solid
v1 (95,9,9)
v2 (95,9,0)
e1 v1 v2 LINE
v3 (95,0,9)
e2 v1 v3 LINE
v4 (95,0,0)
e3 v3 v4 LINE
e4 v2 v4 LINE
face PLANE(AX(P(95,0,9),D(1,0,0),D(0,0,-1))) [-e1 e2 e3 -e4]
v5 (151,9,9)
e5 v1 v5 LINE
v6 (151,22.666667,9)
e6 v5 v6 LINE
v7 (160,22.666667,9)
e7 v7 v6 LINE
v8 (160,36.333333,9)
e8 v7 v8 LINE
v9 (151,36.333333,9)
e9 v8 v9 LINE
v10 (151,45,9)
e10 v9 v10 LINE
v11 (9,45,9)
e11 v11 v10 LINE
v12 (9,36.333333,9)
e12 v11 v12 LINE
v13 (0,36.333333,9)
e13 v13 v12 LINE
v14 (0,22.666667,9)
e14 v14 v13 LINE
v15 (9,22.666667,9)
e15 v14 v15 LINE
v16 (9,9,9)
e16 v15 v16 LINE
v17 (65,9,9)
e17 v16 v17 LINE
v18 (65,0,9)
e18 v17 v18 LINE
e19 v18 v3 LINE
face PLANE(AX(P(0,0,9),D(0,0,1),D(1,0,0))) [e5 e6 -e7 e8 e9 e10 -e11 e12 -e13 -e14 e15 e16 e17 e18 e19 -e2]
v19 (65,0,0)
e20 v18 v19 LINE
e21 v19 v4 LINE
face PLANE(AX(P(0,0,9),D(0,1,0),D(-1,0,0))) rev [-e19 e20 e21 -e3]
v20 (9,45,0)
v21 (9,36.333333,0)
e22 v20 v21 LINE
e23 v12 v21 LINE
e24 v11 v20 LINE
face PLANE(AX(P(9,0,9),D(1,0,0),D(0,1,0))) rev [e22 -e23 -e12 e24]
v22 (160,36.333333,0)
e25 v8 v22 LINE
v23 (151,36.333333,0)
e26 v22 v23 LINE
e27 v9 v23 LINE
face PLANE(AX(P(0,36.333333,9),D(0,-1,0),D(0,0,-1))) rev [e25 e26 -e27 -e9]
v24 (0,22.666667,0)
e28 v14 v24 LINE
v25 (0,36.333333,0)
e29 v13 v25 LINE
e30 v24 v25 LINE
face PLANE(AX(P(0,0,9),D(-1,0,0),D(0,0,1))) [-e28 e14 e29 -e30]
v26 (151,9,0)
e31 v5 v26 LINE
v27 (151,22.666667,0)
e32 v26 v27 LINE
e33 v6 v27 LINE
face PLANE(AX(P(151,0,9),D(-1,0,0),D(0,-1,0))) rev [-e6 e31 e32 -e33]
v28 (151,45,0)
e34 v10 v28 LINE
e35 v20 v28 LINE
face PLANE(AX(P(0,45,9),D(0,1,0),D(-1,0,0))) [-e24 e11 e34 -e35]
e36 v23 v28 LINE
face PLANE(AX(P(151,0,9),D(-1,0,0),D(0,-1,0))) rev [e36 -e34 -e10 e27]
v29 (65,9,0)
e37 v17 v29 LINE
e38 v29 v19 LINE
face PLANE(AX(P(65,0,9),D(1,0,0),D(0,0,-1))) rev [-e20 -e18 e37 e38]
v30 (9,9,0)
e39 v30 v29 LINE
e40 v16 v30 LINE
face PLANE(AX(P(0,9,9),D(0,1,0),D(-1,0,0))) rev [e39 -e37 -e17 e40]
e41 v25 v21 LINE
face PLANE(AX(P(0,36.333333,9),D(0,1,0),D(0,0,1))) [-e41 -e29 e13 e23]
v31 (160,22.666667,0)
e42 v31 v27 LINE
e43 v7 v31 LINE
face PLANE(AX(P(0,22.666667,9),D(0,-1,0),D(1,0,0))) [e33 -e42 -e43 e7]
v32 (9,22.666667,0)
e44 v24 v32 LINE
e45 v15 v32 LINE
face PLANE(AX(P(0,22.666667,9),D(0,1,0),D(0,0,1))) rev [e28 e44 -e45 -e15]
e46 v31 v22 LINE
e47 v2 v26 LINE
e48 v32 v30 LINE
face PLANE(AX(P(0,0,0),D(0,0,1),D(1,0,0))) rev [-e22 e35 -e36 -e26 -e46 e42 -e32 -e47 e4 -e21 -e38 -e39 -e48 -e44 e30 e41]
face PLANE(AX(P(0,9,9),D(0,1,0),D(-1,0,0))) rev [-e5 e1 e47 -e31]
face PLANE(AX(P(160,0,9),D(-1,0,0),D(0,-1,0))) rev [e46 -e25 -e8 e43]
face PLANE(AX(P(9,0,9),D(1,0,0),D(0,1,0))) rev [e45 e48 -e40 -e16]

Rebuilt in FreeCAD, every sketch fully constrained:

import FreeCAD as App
import Part
import Sketcher

V = App.Vector
Q = App.Units.Quantity

doc = App.newDocument("Part")
body = doc.addObject("PartDesign::Body", "Body")

sketch1 = body.newObject("Sketcher::SketchObject", "Sketch")
sketch1.AttachmentSupport = (doc.getObject("XY_Plane"), [""])
sketch1.MapMode = "FlatFace"
sketch1.addGeometry([
    Part.LineSegment(V(9, 9, 0), V(65, 9, 0)),
    Part.LineSegment(V(65, 9, 0), V(65, 0, 0)),
    Part.LineSegment(V(65, 0, 0), V(95, 0, 0)),
    Part.LineSegment(V(95, 0, 0), V(95, 9, 0)),
    Part.LineSegment(V(95, 9, 0), V(151, 9, 0)),
    Part.LineSegment(V(151, 9, 0), V(151, 23, 0)),
    Part.LineSegment(V(151, 23, 0), V(160, 23, 0)),
    Part.LineSegment(V(160, 23, 0), V(160, 36, 0)),
    Part.LineSegment(V(160, 36, 0), V(151, 36, 0)),
    Part.LineSegment(V(151, 36, 0), V(151, 45, 0)),
    Part.LineSegment(V(151, 45, 0), V(9, 45, 0)),
    Part.LineSegment(V(9, 45, 0), V(9, 36, 0)),
    Part.LineSegment(V(9, 36, 0), V(0, 36, 0)),
    Part.LineSegment(V(0, 36, 0), V(0, 23, 0)),
    Part.LineSegment(V(0, 23, 0), V(9, 23, 0)),
    Part.LineSegment(V(9, 23, 0), V(9, 9, 0)),
], False)
sketch1.addConstraint([
    Sketcher.Constraint("Coincident", 0, 2, 1, 1),
    Sketcher.Constraint("Coincident", 1, 2, 2, 1),
    Sketcher.Constraint("Coincident", 2, 2, 3, 1),
    Sketcher.Constraint("Coincident", 3, 2, 4, 1),
    Sketcher.Constraint("Coincident", 4, 2, 5, 1),
    Sketcher.Constraint("Coincident", 5, 2, 6, 1),
    Sketcher.Constraint("Coincident", 6, 2, 7, 1),
    Sketcher.Constraint("Coincident", 7, 2, 8, 1),
    Sketcher.Constraint("Coincident", 8, 2, 9, 1),
    Sketcher.Constraint("Coincident", 9, 2, 10, 1),
    Sketcher.Constraint("Coincident", 10, 2, 11, 1),
    Sketcher.Constraint("Coincident", 11, 2, 12, 1),
    Sketcher.Constraint("Coincident", 12, 2, 13, 1),
    Sketcher.Constraint("Coincident", 13, 2, 14, 1),
    Sketcher.Constraint("Coincident", 14, 2, 15, 1),
    Sketcher.Constraint("Coincident", 15, 2, 0, 1),
    Sketcher.Constraint("Horizontal", 0),
    Sketcher.Constraint("Vertical", 1),
    Sketcher.Constraint("Horizontal", 2),
    Sketcher.Constraint("Vertical", 3),
    Sketcher.Constraint("Horizontal", 4),
    Sketcher.Constraint("Vertical", 5),
    Sketcher.Constraint("Horizontal", 6),
    Sketcher.Constraint("Vertical", 7),
    Sketcher.Constraint("Horizontal", 8),
    Sketcher.Constraint("Vertical", 9),
    Sketcher.Constraint("Horizontal", 10),
    Sketcher.Constraint("Vertical", 11),
    Sketcher.Constraint("Horizontal", 12),
    Sketcher.Constraint("Vertical", 13),
    Sketcher.Constraint("Horizontal", 14),
    Sketcher.Constraint("Vertical", 15),
    Sketcher.Constraint("PointOnObject", 1, 2, -1),
    Sketcher.Constraint("PointOnObject", 12, 2, -2),
    Sketcher.Constraint("Horizontal", 0, 2, 3, 2),
    Sketcher.Constraint("Horizontal", 8, 2, 11, 2),
    Sketcher.Constraint("Horizontal", 6, 2, 13, 2),
    Sketcher.Constraint("Vertical", 5, 2, 8, 2),
    Sketcher.Constraint("Vertical", 11, 2, 14, 2),
    Sketcher.Constraint("Equal", 0, 4),
    Sketcher.Constraint("Equal", 8, 12),
    Sketcher.Constraint("Equal", 14, 1),
    Sketcher.Constraint("Equal", 5, 7),
    Sketcher.Constraint("DistanceX", 0, 1, 0, 2, Q("56 mm")),
    Sketcher.Constraint("DistanceX", 2, 1, 2, 2, Q("30 mm")),
    Sketcher.Constraint("DistanceX", 6, 1, 6, 2, Q("9 mm")),
    Sketcher.Constraint("DistanceY", -1, 1, 9, 2, Q("45 mm")),
    Sketcher.Constraint("DistanceY", 5, 1, 5, 2, Q("13.666667 mm")),
])
pad1 = body.newObject("PartDesign::Pad", "Pad")
pad1.Profile = sketch1
pad1.Length = 9

doc.recompute()
